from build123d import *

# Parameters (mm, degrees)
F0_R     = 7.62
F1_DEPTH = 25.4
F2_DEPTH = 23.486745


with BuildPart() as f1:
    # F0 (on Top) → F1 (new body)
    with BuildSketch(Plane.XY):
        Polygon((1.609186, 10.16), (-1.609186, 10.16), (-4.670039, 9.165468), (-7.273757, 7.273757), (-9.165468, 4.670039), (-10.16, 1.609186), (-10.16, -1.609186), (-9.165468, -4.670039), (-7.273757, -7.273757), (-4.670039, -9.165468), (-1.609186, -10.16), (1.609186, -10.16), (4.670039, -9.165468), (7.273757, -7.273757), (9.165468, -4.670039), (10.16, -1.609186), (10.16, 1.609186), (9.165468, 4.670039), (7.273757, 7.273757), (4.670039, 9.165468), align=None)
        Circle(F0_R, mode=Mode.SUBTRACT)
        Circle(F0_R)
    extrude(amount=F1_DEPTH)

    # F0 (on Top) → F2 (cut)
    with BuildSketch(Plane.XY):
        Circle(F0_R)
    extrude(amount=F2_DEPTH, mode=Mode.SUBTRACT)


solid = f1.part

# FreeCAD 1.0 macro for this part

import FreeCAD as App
import Part
import Sketcher

V = App.Vector
Q = App.Units.Quantity

doc = App.newDocument("Part")
params = doc.addObject("Spreadsheet::Sheet", "Params")
for row, (alias, value) in enumerate([
    ("pad1_length", "1 in"),
    ("sketch2_diameter", "0.6 in"),
    ("pocket1_length", "23.486745 mm"),
], start=1):
    params.set(f"A{row}", alias)
    params.set(f"B{row}", "=" + value)
    params.setAlias(f"B{row}", alias)

body = doc.addObject("PartDesign::Body", "Body")

# Sketch on XY plane
sketch1 = body.newObject("Sketcher::SketchObject", "Sketch")
sketch1.AttachmentSupport = (doc.getObject("XY_Plane"), [""])
sketch1.MapMode = "FlatFace"
sketch1.addGeometry([
    Part.LineSegment(V(1.6, 10.2, 0), V(-1.6, 10.2, 0)),  # 0
    Part.LineSegment(V(-1.6, 10.2, 0), V(-4.7, 9.2, 0)),  # 1
    Part.LineSegment(V(-4.7, 9.2, 0), V(-7.3, 7.3, 0)),  # 2
    Part.LineSegment(V(-7.3, 7.3, 0), V(-9.2, 4.7, 0)),  # 3
    Part.LineSegment(V(-9.2, 4.7, 0), V(-10.2, 1.6, 0)),  # 4
    Part.LineSegment(V(-10.2, 1.6, 0), V(-10.2, -1.6, 0)),  # 5
    Part.LineSegment(V(-10.2, -1.6, 0), V(-9.2, -4.7, 0)),  # 6
    Part.LineSegment(V(-9.2, -4.7, 0), V(-7.3, -7.3, 0)),  # 7
    Part.LineSegment(V(-7.3, -7.3, 0), V(-4.7, -9.2, 0)),  # 8
    Part.LineSegment(V(-4.7, -9.2, 0), V(-1.6, -10.2, 0)),  # 9
    Part.LineSegment(V(-1.6, -10.2, 0), V(1.6, -10.2, 0)),  # 10
    Part.LineSegment(V(1.6, -10.2, 0), V(4.7, -9.2, 0)),  # 11
    Part.LineSegment(V(4.7, -9.2, 0), V(7.3, -7.3, 0)),  # 12
    Part.LineSegment(V(7.3, -7.3, 0), V(9.2, -4.7, 0)),  # 13
    Part.LineSegment(V(9.2, -4.7, 0), V(10.2, -1.6, 0)),  # 14
    Part.LineSegment(V(10.2, -1.6, 0), V(10.2, 1.6, 0)),  # 15
    Part.LineSegment(V(10.2, 1.6, 0), V(9.2, 4.7, 0)),  # 16
    Part.LineSegment(V(9.2, 4.7, 0), V(7.3, 7.3, 0)),  # 17
    Part.LineSegment(V(7.3, 7.3, 0), V(4.7, 9.2, 0)),  # 18
    Part.LineSegment(V(4.7, 9.2, 0), V(1.6, 10.2, 0)),  # 19
], False)
sketch1.addConstraint([
    Sketcher.Constraint("Coincident", 0, 2, 1, 1),
    Sketcher.Constraint("Coincident", 1, 2, 2, 1),
    Sketcher.Constraint("Coincident", 2, 2, 3, 1),
    Sketcher.Constraint("Coincident", 3, 2, 4, 1),
    Sketcher.Constraint("Coincident", 4, 2, 5, 1),
    Sketcher.Constraint("Coincident", 5, 2, 6, 1),
    Sketcher.Constraint("Coincident", 6, 2, 7, 1),
    Sketcher.Constraint("Coincident", 7, 2, 8, 1),
    Sketcher.Constraint("Coincident", 8, 2, 9, 1),
    Sketcher.Constraint("Coincident", 9, 2, 10, 1),
    Sketcher.Constraint("Coincident", 10, 2, 11, 1),
    Sketcher.Constraint("Coincident", 11, 2, 12, 1),
    Sketcher.Constraint("Coincident", 12, 2, 13, 1),
    Sketcher.Constraint("Coincident", 13, 2, 14, 1),
    Sketcher.Constraint("Coincident", 14, 2, 15, 1),
    Sketcher.Constraint("Coincident", 15, 2, 16, 1),
    Sketcher.Constraint("Coincident", 16, 2, 17, 1),
    Sketcher.Constraint("Coincident", 17, 2, 18, 1),
    Sketcher.Constraint("Coincident", 18, 2, 19, 1),
    Sketcher.Constraint("Coincident", 19, 2, 0, 1),
    Sketcher.Constraint("Horizontal", 0),
    Sketcher.Constraint("Vertical", 5),
    Sketcher.Constraint("Horizontal", 10),
    Sketcher.Constraint("Vertical", 15),
    Sketcher.Constraint("Symmetric", 0, 2, 10, 2, -1, 1),
    Sketcher.Constraint("Symmetric", 1, 2, 11, 2, -1, 1),
    Sketcher.Constraint("Symmetric", 2, 2, 12, 2, -1, 1),
    Sketcher.Constraint("Symmetric", 3, 2, 13, 2, -1, 1),
    Sketcher.Constraint("Symmetric", 4, 2, 14, 2, -1, 1),
    Sketcher.Constraint("Symmetric", 6, 2, 16, 2, -1, 1),
    Sketcher.Constraint("Symmetric", 7, 2, 17, 2, -1, 1),
    Sketcher.Constraint("Symmetric", 8, 2, 18, 2, -1, 1),
    Sketcher.Constraint("Symmetric", 8, 2, 11, 2, -2),
    Sketcher.Constraint("Symmetric", 7, 2, 12, 2, -2),
    Sketcher.Constraint("Symmetric", 6, 2, 13, 2, -2),
    Sketcher.Constraint("Perpendicular", 1, 6),
    Sketcher.Constraint("Perpendicular", 2, 7),
    Sketcher.Constraint("Perpendicular", 4, 9),
    Sketcher.Constraint("Perpendicular", 11, 16),
    Sketcher.Constraint("Perpendicular", 14, 19),
    Sketcher.Constraint("Horizontal", 5, 2, 14, 2),
    Sketcher.Constraint("Equal", 10, 5),
    Sketcher.Constraint("Equal", 1, 2),
    Sketcher.Constraint("Equal", 2, 3),
    Sketcher.Constraint("Equal", 3, 4),
    Sketcher.Constraint("Angle", 1, Q("-161.99999 deg")),
    Sketcher.Constraint("Angle", 2, Q("-144.000012 deg")),
    Sketcher.Constraint("DistanceY", -1, 1, 0, 2, Q("0.4 in")),
    Sketcher.Constraint("DistanceX", 0, 2, 0, 1, Q("3.218372 mm")),
])
pad1 = body.newObject("PartDesign::Pad", "Pad")
pad1.Profile = sketch1
pad1.setExpression("Length", "Params.pad1_length")

# Sketch on XY plane
sketch2 = body.newObject("Sketcher::SketchObject", "Sketch001")
sketch2.AttachmentSupport = (doc.getObject("XY_Plane"), [""])
sketch2.MapMode = "FlatFace"
sketch2.addGeometry(Part.Circle(V(0, 0, 0), V(0, 0, 1), 8), False)
sketch2.addConstraint([
    Sketcher.Constraint("Coincident", 0, 3, -1, 1),
    Sketcher.Constraint("Diameter", 0, Q("0.6 in")),
])
sketch2.setExpression("Constraints[1]", "Params.sketch2_diameter")
pocket1 = body.newObject("PartDesign::Pocket", "Pocket")
pocket1.Profile = sketch2
pocket1.setExpression("Length", "Params.pocket1_length")
pocket1.Reversed = True

doc.recompute()
